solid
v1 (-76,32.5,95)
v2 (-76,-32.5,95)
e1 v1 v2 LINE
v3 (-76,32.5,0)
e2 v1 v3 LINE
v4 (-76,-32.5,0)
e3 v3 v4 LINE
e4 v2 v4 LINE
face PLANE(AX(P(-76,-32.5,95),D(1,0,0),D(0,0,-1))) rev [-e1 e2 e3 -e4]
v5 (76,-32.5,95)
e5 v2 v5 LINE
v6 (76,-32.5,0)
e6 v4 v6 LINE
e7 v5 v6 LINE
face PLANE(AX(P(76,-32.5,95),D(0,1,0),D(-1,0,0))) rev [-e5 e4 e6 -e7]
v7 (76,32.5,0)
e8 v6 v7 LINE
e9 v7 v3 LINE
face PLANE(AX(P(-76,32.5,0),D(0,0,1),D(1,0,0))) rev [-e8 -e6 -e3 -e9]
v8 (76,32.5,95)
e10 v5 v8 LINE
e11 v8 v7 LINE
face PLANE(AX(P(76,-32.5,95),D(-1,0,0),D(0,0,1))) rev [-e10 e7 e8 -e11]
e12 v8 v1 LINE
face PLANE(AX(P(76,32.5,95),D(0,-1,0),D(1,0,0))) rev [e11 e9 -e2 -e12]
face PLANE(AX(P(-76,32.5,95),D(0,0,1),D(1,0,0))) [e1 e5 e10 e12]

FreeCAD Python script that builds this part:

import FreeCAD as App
import Part
import Sketcher
from FreeCAD import Vector


def add_polygon(sketch, points):
    """Adds a closed chain of lines whose ends are joined by coincident constraints."""
    first, n = sketch.GeometryCount, len(points)
    for a, b in zip(points, points[1:] + points[:1]):
        sketch.addGeometry(Part.LineSegment(App.Vector(*a, 0), App.Vector(*b, 0)), False)
    for i in range(n):
        sketch.addConstraint(Sketcher.Constraint("Coincident", first + i, 2, first + (i + 1) % n, 1))

doc = App.newDocument("Part")
params = doc.addObject("Spreadsheet::Sheet", "Params")
for row, (alias, value) in enumerate([
    ("sketch1_width", "152 mm"),
    ("sketch1_height", "65 mm"),
    ("pad1_length", "95 mm"),
], start=1):
    params.set(f"A{row}", alias)
    params.set(f"B{row}", "=" + value)
    params.setAlias(f"B{row}", alias)

body = doc.addObject("PartDesign::Body", "Body")

# Sketch on XY plane
sketch1 = body.newObject("Sketcher::SketchObject", "Sketch")
sketch1.AttachmentSupport = (doc.getObject("XY_Plane"), [""])
sketch1.MapMode = "FlatFace"
add_polygon(sketch1, [(-76, 32.5), (-76, -32.5), (76, -32.5), (76, 32.5)])  # lines 0-3
sketch1.addConstraint([
    Sketcher.Constraint("Vertical", 0),
    Sketcher.Constraint("Horizontal", 1),
    Sketcher.Constraint("Vertical", 2),
    Sketcher.Constraint("Horizontal", 3),
    Sketcher.Constraint("Symmetric", 0, 2, 2, 2, -1, 1),
    Sketcher.Constraint("DistanceX", 1, 1, 1, 2, 152.0),
    Sketcher.Constraint("DistanceY", 0, 2, 0, 1, 65.0),
])
sketch1.setExpression("Constraints[9]", "Params.sketch1_width")
sketch1.setExpression("Constraints[10]", "Params.sketch1_height")
pad1 = body.newObject("PartDesign::Pad", "Pad")
pad1.Profile = sketch1
pad1.setExpression("Length", "Params.pad1_length")

doc.recompute()
